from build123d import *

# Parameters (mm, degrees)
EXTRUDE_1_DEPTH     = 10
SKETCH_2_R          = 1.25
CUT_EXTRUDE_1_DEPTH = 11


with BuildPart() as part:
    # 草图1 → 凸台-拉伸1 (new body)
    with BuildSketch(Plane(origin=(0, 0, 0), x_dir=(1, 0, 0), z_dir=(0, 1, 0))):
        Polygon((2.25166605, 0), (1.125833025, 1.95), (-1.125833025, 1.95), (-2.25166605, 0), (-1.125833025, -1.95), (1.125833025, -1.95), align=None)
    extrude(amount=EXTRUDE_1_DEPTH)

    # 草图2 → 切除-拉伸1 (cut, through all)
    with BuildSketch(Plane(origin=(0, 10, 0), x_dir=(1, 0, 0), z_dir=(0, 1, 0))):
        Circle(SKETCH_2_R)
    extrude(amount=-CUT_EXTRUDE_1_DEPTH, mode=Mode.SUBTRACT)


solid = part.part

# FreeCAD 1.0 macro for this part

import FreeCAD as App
import Part
import Sketcher
Q = App.Units.Quantity

doc = App.newDocument("Part")
body = doc.addObject("PartDesign::Body", "Body")

# Sketch on XZ plane
sketch1 = body.newObject("Sketcher::SketchObject", "Sketch")
sketch1.AttachmentSupport = (doc.getObject("XZ_Plane"), [""])
sketch1.MapMode = "FlatFace"
sketch1.addGeometry(Part.LineSegment(App.Vector(2.3, 0, 0), App.Vector(1.1, -1.9, 0)), False)
sketch1.addGeometry(Part.LineSegment(App.Vector(1.1, -1.9, 0), App.Vector(-1.1, -1.9, 0)), False)
sketch1.addGeometry(Part.LineSegment(App.Vector(-1.1, -1.9, 0), App.Vector(-2.3, 0, 0)), False)
sketch1.addGeometry(Part.LineSegment(App.Vector(-2.3, 0, 0), App.Vector(-1.1, 1.9, 0)), False)
sketch1.addGeometry(Part.LineSegment(App.Vector(-1.1, 1.9, 0), App.Vector(1.1, 1.9, 0)), False)
sketch1.addGeometry(Part.LineSegment(App.Vector(1.1, 1.9, 0), App.Vector(2.3, 0, 0)), False)
sketch1.addConstraint(Sketcher.Constraint("Coincident", 0, 2, 1, 1))
sketch1.addConstraint(Sketcher.Constraint("Coincident", 1, 2, 2, 1))
sketch1.addConstraint(Sketcher.Constraint("Coincident", 2, 2, 3, 1))
sketch1.addConstraint(Sketcher.Constraint("Coincident", 3, 2, 4, 1))
sketch1.addConstraint(Sketcher.Constraint("Coincident", 4, 2, 5, 1))
sketch1.addConstraint(Sketcher.Constraint("Coincident", 5, 2, 0, 1))
sketch1.addConstraint(Sketcher.Constraint("Horizontal", 1))
sketch1.addConstraint(Sketcher.Constraint("Horizontal", 4))
sketch1.addConstraint(Sketcher.Constraint("Symmetric", 0, 2, 3, 2, -1, 1))
sketch1.addConstraint(Sketcher.Constraint("Symmetric", 2, 2, 5, 2, -1, 1))
sketch1.addConstraint(Sketcher.Constraint("PointOnObject", 2, 2, -1))
sketch1.addConstraint(Sketcher.Constraint("Parallel", 2, 5))
sketch1.addConstraint(Sketcher.Constraint("Vertical", 1, 2, 3, 2))
sketch1.addConstraint(Sketcher.Constraint("Angle", 0, Q("-120 deg")))
sketch1.addConstraint(Sketcher.Constraint("DistanceY", 1, 2, 3, 2, 3.9))
sketch1.addConstraint(Sketcher.Constraint("DistanceX", 2, 2, 0, 2, 3.377499))
pad1 = body.newObject("PartDesign::Pad", "Pad")
pad1.Profile = sketch1
pad1.Length = 10
pad1.Reversed = True

# Sketch on XZ plane
sketch2 = body.newObject("Sketcher::SketchObject", "Sketch001")
sketch2.AttachmentSupport = (doc.getObject("XZ_Plane"), [""])
sketch2.MapMode = "FlatFace"
sketch2.AttachmentOffset = App.Placement(App.Vector(0, 0, -10), App.Rotation())
sketch2.addGeometry(Part.Circle(App.Vector(0, 0, 0), App.Vector(0, 0, 1), 1.2), False)
sketch2.addConstraint(Sketcher.Constraint("Coincident", 0, 3, -1, 1))
sketch2.addConstraint(Sketcher.Constraint("Diameter", 0, 2.5))
pocket1 = body.newObject("PartDesign::Pocket", "Pocket")
pocket1.Profile = sketch2
pocket1.Type = "ThroughAll"
pocket1.Reversed = True

doc.recompute()
